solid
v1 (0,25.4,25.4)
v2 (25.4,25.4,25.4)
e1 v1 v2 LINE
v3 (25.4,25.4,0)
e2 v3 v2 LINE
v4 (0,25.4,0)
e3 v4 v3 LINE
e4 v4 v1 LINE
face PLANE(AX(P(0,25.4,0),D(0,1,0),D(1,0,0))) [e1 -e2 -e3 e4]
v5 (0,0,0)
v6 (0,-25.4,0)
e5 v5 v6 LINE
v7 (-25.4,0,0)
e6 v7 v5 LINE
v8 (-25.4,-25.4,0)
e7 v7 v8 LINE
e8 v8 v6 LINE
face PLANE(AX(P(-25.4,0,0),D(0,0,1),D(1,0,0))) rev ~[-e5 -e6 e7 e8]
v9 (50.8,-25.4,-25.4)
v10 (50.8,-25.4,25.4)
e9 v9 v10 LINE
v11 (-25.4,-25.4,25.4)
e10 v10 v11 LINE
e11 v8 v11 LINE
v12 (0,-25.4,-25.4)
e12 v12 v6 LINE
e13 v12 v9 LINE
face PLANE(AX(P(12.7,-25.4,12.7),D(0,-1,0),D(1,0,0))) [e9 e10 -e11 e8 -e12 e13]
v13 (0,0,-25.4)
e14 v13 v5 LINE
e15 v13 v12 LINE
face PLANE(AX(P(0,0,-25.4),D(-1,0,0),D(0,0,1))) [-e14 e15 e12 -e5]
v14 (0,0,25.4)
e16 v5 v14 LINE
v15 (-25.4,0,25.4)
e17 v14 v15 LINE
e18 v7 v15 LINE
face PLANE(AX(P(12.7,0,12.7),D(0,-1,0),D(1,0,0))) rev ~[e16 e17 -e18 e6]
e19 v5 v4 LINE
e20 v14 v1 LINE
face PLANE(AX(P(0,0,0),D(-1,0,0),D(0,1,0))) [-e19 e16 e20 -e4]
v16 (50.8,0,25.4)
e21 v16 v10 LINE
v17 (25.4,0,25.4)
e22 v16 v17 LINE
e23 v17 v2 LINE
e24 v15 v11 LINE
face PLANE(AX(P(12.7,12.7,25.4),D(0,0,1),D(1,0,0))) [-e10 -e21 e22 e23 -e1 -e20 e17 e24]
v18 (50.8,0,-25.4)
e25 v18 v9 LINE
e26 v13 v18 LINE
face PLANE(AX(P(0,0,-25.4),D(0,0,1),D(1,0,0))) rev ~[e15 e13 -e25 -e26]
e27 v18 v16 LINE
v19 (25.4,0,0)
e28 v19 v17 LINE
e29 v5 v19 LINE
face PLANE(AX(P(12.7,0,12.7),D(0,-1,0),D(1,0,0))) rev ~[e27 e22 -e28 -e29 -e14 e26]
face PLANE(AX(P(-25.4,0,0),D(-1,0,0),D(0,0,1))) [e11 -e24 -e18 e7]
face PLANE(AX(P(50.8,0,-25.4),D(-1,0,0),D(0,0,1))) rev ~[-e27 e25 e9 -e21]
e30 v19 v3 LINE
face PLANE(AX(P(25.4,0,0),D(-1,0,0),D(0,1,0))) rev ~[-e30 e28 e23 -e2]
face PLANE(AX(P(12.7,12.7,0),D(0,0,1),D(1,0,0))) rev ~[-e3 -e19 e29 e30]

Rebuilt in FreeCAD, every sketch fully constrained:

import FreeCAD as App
import Part
import Sketcher
from FreeCAD import Vector
Q = App.Units.Quantity


def add_polygon(sketch, points):
    """Adds a closed chain of lines whose ends are joined by coincident constraints."""
    first, n = sketch.GeometryCount, len(points)
    for a, b in zip(points, points[1:] + points[:1]):
        sketch.addGeometry(Part.LineSegment(App.Vector(*a, 0), App.Vector(*b, 0)), False)
    for i in range(n):
        sketch.addConstraint(Sketcher.Constraint("Coincident", first + i, 2, first + (i + 1) % n, 1))

doc = App.newDocument("Part")
body = doc.addObject("PartDesign::Body", "Body")

# Sketch on XZ plane
sketch1 = body.newObject("Sketcher::SketchObject", "Sketch")
sketch1.AttachmentSupport = (doc.getObject("XZ_Plane"), [""])
sketch1.MapMode = "FlatFace"
add_polygon(sketch1, [(-25.4, 25.4), (-25.4, 0), (0, 0), (0, -25.4), (50.8, -25.4), (50.8, 25.4)])  # lines 0-5
sketch1.addConstraint([
    Sketcher.Constraint("Vertical", 0),
    Sketcher.Constraint("Horizontal", 1),
    Sketcher.Constraint("Vertical", 2),
    Sketcher.Constraint("Horizontal", 3),
    Sketcher.Constraint("Vertical", 4),
    Sketcher.Constraint("Horizontal", 5),
    Sketcher.Constraint("Coincident", 1, 2, -1, 1),
    Sketcher.Constraint("Equal", 1, 0),
    Sketcher.Constraint("Equal", 0, 2),
    Sketcher.Constraint("Equal", 3, 4),
    Sketcher.Constraint("DistanceX", 1, 1, 1, 2, Q("1 in")),
])
pad1 = body.newObject("PartDesign::Pad", "Pad")
pad1.Profile = sketch1
pad1.Length = Q("1 in")

# Sketch on XY plane
sketch2 = body.newObject("Sketcher::SketchObject", "Sketch001")
sketch2.AttachmentSupport = (doc.getObject("XY_Plane"), [""])
sketch2.MapMode = "FlatFace"
add_polygon(sketch2, [(0, 25.4), (0, 0), (25.4, 0), (25.4, 25.4)])  # lines 0-3
sketch2.addConstraint([
    Sketcher.Constraint("Vertical", 0),
    Sketcher.Constraint("Horizontal", 1),
    Sketcher.Constraint("Vertical", 2),
    Sketcher.Constraint("Horizontal", 3),
    Sketcher.Constraint("Coincident", 0, 2, -1, 1),
    Sketcher.Constraint("Equal", 3, 0),
    Sketcher.Constraint("DistanceX", 1, 1, 1, 2, Q("1 in")),
])
pad2 = body.newObject("PartDesign::Pad", "Pad001")
pad2.Profile = sketch2
pad2.Length = Q("1 in")

doc.recompute()
